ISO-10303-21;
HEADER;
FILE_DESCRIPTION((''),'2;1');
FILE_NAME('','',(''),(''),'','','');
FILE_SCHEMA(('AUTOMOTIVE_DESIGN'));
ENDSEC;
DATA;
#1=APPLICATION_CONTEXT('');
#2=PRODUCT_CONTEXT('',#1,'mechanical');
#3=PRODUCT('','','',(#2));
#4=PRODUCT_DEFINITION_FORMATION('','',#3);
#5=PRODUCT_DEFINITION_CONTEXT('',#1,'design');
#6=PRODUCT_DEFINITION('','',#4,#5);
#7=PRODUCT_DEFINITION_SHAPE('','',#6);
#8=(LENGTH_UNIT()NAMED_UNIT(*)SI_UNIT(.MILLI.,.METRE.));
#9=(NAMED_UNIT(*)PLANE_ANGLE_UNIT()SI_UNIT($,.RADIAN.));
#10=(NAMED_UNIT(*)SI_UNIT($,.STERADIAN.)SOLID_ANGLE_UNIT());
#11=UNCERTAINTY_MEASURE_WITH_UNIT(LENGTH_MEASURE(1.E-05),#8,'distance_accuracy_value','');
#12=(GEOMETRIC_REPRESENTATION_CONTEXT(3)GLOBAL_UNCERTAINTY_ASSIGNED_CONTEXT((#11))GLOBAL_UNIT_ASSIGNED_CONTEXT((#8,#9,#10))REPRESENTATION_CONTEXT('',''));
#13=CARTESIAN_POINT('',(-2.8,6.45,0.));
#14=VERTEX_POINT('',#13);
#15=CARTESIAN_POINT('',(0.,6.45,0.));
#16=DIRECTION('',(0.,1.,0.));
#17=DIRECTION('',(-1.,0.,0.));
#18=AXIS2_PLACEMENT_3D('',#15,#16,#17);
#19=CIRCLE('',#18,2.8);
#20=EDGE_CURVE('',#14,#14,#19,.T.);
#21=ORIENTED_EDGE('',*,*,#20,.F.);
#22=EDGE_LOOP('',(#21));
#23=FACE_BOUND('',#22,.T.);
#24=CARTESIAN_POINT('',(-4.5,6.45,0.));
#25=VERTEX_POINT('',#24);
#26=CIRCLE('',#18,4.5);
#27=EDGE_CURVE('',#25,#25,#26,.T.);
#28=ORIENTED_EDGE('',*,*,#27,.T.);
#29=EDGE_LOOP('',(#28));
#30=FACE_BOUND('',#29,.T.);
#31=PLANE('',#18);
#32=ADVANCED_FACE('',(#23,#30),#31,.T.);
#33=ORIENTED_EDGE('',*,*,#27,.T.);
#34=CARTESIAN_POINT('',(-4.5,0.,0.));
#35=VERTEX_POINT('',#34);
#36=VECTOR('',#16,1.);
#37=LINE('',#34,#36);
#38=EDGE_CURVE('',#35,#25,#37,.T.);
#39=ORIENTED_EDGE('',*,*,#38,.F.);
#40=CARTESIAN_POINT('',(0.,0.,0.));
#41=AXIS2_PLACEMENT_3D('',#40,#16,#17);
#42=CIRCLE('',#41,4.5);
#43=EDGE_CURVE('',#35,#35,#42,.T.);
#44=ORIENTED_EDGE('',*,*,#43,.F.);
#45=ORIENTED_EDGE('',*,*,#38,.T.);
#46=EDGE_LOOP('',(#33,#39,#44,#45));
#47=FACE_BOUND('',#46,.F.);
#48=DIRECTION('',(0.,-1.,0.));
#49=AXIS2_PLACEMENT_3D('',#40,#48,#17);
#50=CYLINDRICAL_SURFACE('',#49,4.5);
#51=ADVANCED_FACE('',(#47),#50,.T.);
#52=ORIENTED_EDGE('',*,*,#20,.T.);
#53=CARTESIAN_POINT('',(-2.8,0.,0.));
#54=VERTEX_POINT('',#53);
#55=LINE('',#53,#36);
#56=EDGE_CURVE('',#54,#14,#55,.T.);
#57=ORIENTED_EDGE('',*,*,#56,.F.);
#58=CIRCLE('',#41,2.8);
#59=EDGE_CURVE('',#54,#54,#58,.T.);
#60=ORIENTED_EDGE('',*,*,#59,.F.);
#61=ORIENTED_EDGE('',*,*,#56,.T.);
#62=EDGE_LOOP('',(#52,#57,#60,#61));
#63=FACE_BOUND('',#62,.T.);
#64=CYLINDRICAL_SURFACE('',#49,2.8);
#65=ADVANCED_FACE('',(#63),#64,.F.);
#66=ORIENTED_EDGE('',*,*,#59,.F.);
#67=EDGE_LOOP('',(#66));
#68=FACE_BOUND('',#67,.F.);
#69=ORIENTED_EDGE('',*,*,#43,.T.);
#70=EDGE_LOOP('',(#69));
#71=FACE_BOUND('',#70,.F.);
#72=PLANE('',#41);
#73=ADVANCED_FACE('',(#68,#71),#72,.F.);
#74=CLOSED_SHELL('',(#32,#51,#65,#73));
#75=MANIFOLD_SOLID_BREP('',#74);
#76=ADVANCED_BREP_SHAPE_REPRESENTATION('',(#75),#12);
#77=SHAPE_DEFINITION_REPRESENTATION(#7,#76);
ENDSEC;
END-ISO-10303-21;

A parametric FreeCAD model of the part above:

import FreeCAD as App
import Part
import Sketcher

V = App.Vector
Q = App.Units.Quantity

doc = App.newDocument("Part")
body = doc.addObject("PartDesign::Body", "Body")

# Sketch on XZ plane
sketch1 = body.newObject("Sketcher::SketchObject", "Sketch")
sketch1.AttachmentSupport = (doc.getObject("XZ_Plane"), [""])
sketch1.MapMode = "FlatFace"
sketch1.addGeometry([
    Part.Circle(V(0, 0, 0), V(0, 0, 1), 4.5),
    Part.Circle(V(0, 0, 0), V(0, 0, 1), 2.8),
], False)
sketch1.addConstraint([
    Sketcher.Constraint("Coincident", 0, 3, -1, 1),
    Sketcher.Constraint("Coincident", 1, 3, -1, 1),
    Sketcher.Constraint("Diameter", 0, Q("9 mm")),
    Sketcher.Constraint("Diameter", 1, Q("5.6 mm")),
])
pad1 = body.newObject("PartDesign::Pad", "Pad")
pad1.Profile = sketch1
pad1.Length = 6.45
pad1.Reversed = True

doc.recompute()
